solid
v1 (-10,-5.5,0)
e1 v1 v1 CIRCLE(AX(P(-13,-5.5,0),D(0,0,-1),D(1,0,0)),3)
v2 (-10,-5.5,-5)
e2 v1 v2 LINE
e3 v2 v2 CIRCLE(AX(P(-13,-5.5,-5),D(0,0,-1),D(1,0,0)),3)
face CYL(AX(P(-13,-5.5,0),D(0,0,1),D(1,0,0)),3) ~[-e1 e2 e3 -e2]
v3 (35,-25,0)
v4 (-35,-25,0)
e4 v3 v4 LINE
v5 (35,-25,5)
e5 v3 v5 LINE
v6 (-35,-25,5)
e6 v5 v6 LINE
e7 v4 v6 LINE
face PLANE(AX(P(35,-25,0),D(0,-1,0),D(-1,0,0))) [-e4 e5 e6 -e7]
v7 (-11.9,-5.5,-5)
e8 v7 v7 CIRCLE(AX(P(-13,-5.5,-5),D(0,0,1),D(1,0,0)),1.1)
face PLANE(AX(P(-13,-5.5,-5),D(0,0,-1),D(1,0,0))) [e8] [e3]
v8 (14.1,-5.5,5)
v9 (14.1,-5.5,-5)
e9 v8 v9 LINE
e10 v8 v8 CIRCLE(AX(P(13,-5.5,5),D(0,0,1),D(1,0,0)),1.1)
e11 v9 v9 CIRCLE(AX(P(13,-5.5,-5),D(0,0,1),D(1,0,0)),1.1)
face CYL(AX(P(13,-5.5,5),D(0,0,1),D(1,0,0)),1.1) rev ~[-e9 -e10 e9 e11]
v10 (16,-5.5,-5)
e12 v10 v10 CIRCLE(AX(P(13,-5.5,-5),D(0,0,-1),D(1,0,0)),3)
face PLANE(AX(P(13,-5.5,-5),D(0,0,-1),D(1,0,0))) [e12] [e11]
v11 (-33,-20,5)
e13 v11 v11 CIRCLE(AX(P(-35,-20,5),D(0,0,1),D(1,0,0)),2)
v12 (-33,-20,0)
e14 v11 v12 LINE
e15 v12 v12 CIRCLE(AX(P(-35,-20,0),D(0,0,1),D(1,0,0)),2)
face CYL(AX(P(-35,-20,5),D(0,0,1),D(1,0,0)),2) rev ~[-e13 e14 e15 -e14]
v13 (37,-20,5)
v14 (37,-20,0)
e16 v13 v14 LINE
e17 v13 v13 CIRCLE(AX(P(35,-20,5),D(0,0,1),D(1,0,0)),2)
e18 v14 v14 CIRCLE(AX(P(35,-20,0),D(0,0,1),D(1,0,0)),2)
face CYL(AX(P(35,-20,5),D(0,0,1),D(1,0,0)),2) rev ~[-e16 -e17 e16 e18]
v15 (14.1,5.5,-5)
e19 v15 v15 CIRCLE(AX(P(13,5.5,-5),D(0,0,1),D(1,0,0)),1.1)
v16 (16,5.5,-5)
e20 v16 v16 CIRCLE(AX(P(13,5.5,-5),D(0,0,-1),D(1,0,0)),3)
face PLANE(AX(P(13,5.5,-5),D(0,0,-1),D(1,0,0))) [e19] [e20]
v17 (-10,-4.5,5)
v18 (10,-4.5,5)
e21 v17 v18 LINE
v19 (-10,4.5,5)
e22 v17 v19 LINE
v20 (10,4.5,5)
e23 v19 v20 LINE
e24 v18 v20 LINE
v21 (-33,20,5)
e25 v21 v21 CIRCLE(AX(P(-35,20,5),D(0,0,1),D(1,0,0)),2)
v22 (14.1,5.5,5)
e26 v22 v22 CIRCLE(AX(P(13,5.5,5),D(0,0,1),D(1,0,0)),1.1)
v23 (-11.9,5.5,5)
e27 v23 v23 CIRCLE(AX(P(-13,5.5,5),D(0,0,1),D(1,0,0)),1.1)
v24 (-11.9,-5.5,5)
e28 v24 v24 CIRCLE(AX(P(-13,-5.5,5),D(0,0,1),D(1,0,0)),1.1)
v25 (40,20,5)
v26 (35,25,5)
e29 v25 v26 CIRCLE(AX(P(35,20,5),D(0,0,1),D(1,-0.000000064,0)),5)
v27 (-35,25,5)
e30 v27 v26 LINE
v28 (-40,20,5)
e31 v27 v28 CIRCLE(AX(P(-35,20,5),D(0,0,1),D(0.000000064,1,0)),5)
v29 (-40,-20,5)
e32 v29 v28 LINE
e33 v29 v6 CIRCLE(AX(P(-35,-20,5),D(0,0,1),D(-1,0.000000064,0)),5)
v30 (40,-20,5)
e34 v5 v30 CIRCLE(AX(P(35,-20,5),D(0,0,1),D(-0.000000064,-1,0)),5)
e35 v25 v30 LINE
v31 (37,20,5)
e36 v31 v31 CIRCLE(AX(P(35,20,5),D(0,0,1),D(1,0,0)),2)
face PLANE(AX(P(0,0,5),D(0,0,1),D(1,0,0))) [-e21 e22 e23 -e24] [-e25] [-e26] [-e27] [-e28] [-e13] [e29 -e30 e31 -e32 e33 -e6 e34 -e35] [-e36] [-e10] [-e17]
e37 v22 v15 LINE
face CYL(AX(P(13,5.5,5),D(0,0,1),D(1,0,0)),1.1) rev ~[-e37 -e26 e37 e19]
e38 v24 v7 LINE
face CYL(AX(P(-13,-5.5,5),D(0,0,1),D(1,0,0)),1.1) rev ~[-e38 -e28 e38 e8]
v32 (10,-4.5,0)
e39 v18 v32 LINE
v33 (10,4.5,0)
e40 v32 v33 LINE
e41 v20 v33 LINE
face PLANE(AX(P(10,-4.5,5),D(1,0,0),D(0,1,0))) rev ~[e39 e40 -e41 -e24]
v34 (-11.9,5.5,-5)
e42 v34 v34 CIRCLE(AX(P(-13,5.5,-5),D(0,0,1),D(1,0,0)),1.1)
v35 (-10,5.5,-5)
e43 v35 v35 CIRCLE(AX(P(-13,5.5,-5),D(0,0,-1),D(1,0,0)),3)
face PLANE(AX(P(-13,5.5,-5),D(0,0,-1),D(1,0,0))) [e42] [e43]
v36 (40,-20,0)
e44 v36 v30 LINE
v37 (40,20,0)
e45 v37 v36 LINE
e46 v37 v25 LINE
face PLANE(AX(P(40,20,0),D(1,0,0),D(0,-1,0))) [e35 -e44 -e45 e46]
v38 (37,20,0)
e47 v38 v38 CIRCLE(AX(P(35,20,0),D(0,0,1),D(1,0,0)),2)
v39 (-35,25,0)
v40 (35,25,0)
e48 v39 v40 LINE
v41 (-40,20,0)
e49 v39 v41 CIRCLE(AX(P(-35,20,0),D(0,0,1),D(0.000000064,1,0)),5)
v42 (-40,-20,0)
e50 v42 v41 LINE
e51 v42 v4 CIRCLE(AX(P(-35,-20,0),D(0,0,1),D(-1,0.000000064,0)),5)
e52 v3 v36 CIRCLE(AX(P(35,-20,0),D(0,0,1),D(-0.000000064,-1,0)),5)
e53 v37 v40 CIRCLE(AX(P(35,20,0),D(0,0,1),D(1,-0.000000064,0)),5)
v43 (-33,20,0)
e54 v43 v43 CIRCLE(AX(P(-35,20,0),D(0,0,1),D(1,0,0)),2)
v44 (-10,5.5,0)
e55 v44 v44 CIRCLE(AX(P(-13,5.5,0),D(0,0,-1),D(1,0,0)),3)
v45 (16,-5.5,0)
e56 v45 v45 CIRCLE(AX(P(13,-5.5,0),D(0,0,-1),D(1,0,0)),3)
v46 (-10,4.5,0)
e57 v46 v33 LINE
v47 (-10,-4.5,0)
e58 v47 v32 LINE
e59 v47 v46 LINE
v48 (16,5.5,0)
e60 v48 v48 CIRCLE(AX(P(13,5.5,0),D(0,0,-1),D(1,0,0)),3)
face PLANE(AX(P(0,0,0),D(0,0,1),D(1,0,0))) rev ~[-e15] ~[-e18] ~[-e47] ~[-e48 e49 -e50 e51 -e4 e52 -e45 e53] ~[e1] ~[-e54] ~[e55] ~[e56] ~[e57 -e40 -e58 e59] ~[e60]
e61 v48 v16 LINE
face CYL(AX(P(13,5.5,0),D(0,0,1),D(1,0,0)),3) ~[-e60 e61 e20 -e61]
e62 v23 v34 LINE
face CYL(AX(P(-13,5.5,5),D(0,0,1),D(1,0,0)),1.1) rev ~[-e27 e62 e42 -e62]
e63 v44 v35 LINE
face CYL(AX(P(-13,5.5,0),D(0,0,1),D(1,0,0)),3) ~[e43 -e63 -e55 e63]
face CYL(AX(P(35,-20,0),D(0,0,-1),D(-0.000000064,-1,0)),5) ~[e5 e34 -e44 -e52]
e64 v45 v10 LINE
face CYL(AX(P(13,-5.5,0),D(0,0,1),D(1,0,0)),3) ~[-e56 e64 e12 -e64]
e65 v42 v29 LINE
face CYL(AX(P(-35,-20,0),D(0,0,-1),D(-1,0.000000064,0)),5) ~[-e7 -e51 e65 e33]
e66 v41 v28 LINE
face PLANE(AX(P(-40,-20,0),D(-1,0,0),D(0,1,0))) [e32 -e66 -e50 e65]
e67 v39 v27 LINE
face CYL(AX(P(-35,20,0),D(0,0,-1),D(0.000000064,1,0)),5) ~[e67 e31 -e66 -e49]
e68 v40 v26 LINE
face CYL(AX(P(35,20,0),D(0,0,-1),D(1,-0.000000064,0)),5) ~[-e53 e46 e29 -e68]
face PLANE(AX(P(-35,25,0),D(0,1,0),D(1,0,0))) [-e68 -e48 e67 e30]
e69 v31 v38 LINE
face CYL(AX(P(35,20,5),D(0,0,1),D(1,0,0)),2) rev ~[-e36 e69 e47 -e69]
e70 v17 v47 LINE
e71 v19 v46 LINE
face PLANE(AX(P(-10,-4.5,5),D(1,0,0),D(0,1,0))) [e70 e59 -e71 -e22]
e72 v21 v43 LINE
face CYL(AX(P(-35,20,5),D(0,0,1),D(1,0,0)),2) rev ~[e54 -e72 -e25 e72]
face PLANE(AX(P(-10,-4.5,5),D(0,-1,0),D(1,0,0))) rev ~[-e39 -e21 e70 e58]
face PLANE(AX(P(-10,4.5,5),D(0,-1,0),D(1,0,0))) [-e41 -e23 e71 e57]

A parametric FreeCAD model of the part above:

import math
import FreeCAD as App
import Part
import Sketcher
Q = App.Units.Quantity


def add_polygon(sketch, points):
    """Adds a closed chain of lines whose ends are joined by coincident constraints."""
    first, n = sketch.GeometryCount, len(points)
    for a, b in zip(points, points[1:] + points[:1]):
        sketch.addGeometry(Part.LineSegment(App.Vector(*a, 0), App.Vector(*b, 0)), False)
    for i in range(n):
        sketch.addConstraint(Sketcher.Constraint("Coincident", first + i, 2, first + (i + 1) % n, 1))

doc = App.newDocument("Part")
body = doc.addObject("PartDesign::Body", "Body")

# Sketch on XY plane
sketch1 = body.newObject("Sketcher::SketchObject", "Sketch")
sketch1.AttachmentSupport = (doc.getObject("XY_Plane"), [""])
sketch1.MapMode = "FlatFace"
sketch1.addGeometry([
    Part.ArcOfCircle(Part.Circle(App.Vector(-35, 20, 0), App.Vector(0, 0, 1), 5), math.radians(90), math.radians(180)),  # 0
    Part.LineSegment(App.Vector(-40, 20, 0), App.Vector(-40, -20, 0)),  # 1
    Part.ArcOfCircle(Part.Circle(App.Vector(-35, -20, 0), App.Vector(0, 0, 1), 5), math.radians(180), math.radians(270)),  # 2
    Part.LineSegment(App.Vector(-35, -25, 0), App.Vector(35, -25, 0)),  # 3
    Part.ArcOfCircle(Part.Circle(App.Vector(35, -20, 0), App.Vector(0, 0, 1), 5), math.radians(-90), math.radians(0)),  # 4
    Part.LineSegment(App.Vector(40, -20, 0), App.Vector(40, 20, 0)),  # 5
    Part.ArcOfCircle(Part.Circle(App.Vector(35, 20, 0), App.Vector(0, 0, 1), 5), math.radians(0), math.radians(90)),  # 6
    Part.LineSegment(App.Vector(35, 25, 0), App.Vector(-35, 25, 0)),  # 7
], False)
sketch1.addConstraint([
    Sketcher.Constraint("Tangent", 0, 2, 1, 1),
    Sketcher.Constraint("Tangent", 1, 2, 2, 1),
    Sketcher.Constraint("Tangent", 2, 2, 3, 1),
    Sketcher.Constraint("Tangent", 3, 2, 4, 1),
    Sketcher.Constraint("Tangent", 4, 2, 5, 1),
    Sketcher.Constraint("Tangent", 5, 2, 6, 1),
    Sketcher.Constraint("Tangent", 6, 2, 7, 1),
    Sketcher.Constraint("Tangent", 7, 2, 0, 1),
    Sketcher.Constraint("Vertical", 1),
    Sketcher.Constraint("Horizontal", 3),
    Sketcher.Constraint("Vertical", 5),
    Sketcher.Constraint("Horizontal", 7),
    Sketcher.Constraint("Equal", 0, 2),
    Sketcher.Constraint("Equal", 2, 4),
    Sketcher.Constraint("Equal", 4, 6),
    Sketcher.Constraint("Symmetric", 0, 3, 4, 3, -1, 1),
    Sketcher.Constraint("Radius", 0, Q("5 mm")),
    Sketcher.Constraint("DistanceX", 3, 1, 3, 2, Q("70 mm")),
    Sketcher.Constraint("DistanceY", 1, 2, 1, 1, Q("40 mm")),
])
pad1 = body.newObject("PartDesign::Pad", "Pad")
pad1.Profile = sketch1
pad1.Length = 5

# Sketch on XY plane
sketch2 = body.newObject("Sketcher::SketchObject", "Sketch001")
sketch2.AttachmentSupport = (doc.getObject("XY_Plane"), [""])
sketch2.MapMode = "FlatFace"
sketch2.AttachmentOffset = App.Placement(App.Vector(0, 0, 5), App.Rotation())
sketch2.addGeometry([
    Part.Circle(App.Vector(-35, 20, 0), App.Vector(0, 0, 1), 2),
    Part.Circle(App.Vector(35, 20, 0), App.Vector(0, 0, 1), 2),
    Part.Circle(App.Vector(35, -20, 0), App.Vector(0, 0, 1), 2),
    Part.Circle(App.Vector(-35, -20, 0), App.Vector(0, 0, 1), 2),
], False)
sketch2.addConstraint([
    Sketcher.Constraint("Equal", 0, 1),
    Sketcher.Constraint("Equal", 1, 2),
    Sketcher.Constraint("Equal", 2, 3),
    Sketcher.Constraint("Symmetric", 0, 3, 2, 3, -1, 1),
    Sketcher.Constraint("Symmetric", 1, 3, 3, 3, -1, 1),
    Sketcher.Constraint("Symmetric", 0, 3, 1, 3, -2),
    Sketcher.Constraint("Diameter", 0, Q("4 mm")),
    Sketcher.Constraint("DistanceX", 0, 3, -1, 1, Q("35 mm")),
    Sketcher.Constraint("DistanceY", -1, 1, 0, 3, Q("20 mm")),
])
pocket1 = body.newObject("PartDesign::Pocket", "Pocket")
pocket1.Profile = sketch2
pocket1.Length = 20

# Sketch on XY plane
sketch3 = body.newObject("Sketcher::SketchObject", "Sketch002")
sketch3.AttachmentSupport = (doc.getObject("XY_Plane"), [""])
sketch3.MapMode = "FlatFace"
sketch3.addGeometry([
    Part.Circle(App.Vector(-13, -5.5, 0), App.Vector(0, 0, 1), 3),
    Part.Circle(App.Vector(13, -5.5, 0), App.Vector(0, 0, 1), 3),
    Part.Circle(App.Vector(13, 5.5, 0), App.Vector(0, 0, 1), 3),
    Part.Circle(App.Vector(-13, 5.5, 0), App.Vector(0, 0, 1), 3),
], False)
sketch3.addConstraint([
    Sketcher.Constraint("Equal", 0, 1),
    Sketcher.Constraint("Equal", 1, 2),
    Sketcher.Constraint("Equal", 2, 3),
    Sketcher.Constraint("Symmetric", 0, 3, 2, 3, -1, 1),
    Sketcher.Constraint("Symmetric", 1, 3, 3, 3, -1, 1),
    Sketcher.Constraint("Symmetric", 0, 3, 1, 3, -2),
    Sketcher.Constraint("Diameter", 0, Q("6 mm")),
    Sketcher.Constraint("DistanceX", 0, 3, -1, 1, Q("13 mm")),
    Sketcher.Constraint("DistanceY", 1, 3, 2, 3, Q("11 mm")),
])
pad2 = body.newObject("PartDesign::Pad", "Pad001")
pad2.Profile = sketch3
pad2.Length = 5
pad2.Reversed = True

# Sketch on XY plane
sketch4 = body.newObject("Sketcher::SketchObject", "Sketch003")
sketch4.AttachmentSupport = (doc.getObject("XY_Plane"), [""])
sketch4.MapMode = "FlatFace"
sketch4.AttachmentOffset = App.Placement(App.Vector(0, 0, 5), App.Rotation())
sketch4.addGeometry(Part.Circle(App.Vector(-13, 5.5, 0), App.Vector(0, 0, 1), 1.1), False)  # 0
sketch4.addGeometry(Part.Circle(App.Vector(13, 5.5, 0), App.Vector(0, 0, 1), 1.1), False)  # 1
sketch4.addGeometry(Part.Circle(App.Vector(13, -5.5, 0), App.Vector(0, 0, 1), 1.1), False)  # 2
sketch4.addGeometry(Part.Circle(App.Vector(-13, -5.5, 0), App.Vector(0, 0, 1), 1.1), False)  # 3
add_polygon(sketch4, [(-10, 4.5), (-10, -4.5), (10, -4.5), (10, 4.5)])  # lines 4-7
sketch4.addConstraint([
    Sketcher.Constraint("Vertical", 4),
    Sketcher.Constraint("Horizontal", 5),
    Sketcher.Constraint("Vertical", 6),
    Sketcher.Constraint("Horizontal", 7),
    Sketcher.Constraint("Equal", 0, 1),
    Sketcher.Constraint("Equal", 1, 2),
    Sketcher.Constraint("Equal", 2, 3),
    Sketcher.Constraint("Symmetric", 0, 3, 2, 3, -1, 1),
    Sketcher.Constraint("Symmetric", 1, 3, 3, 3, -1, 1),
    Sketcher.Constraint("Symmetric", 4, 2, 6, 2, -1, 1),
    Sketcher.Constraint("Symmetric", 0, 3, 1, 3, -2),
    Sketcher.Constraint("Diameter", 0, Q("2.2 mm")),
    Sketcher.Constraint("DistanceX", 5, 1, 5, 2, Q("20 mm")),
    Sketcher.Constraint("DistanceY", 4, 2, 4, 1, Q("9 mm")),
    Sketcher.Constraint("DistanceX", 0, 3, -1, 1, Q("13 mm")),
    Sketcher.Constraint("DistanceY", 2, 3, 1, 3, Q("11 mm")),
])
pocket2 = body.newObject("PartDesign::Pocket", "Pocket001")
pocket2.Profile = sketch4
pocket2.Length = 20

doc.recompute()
